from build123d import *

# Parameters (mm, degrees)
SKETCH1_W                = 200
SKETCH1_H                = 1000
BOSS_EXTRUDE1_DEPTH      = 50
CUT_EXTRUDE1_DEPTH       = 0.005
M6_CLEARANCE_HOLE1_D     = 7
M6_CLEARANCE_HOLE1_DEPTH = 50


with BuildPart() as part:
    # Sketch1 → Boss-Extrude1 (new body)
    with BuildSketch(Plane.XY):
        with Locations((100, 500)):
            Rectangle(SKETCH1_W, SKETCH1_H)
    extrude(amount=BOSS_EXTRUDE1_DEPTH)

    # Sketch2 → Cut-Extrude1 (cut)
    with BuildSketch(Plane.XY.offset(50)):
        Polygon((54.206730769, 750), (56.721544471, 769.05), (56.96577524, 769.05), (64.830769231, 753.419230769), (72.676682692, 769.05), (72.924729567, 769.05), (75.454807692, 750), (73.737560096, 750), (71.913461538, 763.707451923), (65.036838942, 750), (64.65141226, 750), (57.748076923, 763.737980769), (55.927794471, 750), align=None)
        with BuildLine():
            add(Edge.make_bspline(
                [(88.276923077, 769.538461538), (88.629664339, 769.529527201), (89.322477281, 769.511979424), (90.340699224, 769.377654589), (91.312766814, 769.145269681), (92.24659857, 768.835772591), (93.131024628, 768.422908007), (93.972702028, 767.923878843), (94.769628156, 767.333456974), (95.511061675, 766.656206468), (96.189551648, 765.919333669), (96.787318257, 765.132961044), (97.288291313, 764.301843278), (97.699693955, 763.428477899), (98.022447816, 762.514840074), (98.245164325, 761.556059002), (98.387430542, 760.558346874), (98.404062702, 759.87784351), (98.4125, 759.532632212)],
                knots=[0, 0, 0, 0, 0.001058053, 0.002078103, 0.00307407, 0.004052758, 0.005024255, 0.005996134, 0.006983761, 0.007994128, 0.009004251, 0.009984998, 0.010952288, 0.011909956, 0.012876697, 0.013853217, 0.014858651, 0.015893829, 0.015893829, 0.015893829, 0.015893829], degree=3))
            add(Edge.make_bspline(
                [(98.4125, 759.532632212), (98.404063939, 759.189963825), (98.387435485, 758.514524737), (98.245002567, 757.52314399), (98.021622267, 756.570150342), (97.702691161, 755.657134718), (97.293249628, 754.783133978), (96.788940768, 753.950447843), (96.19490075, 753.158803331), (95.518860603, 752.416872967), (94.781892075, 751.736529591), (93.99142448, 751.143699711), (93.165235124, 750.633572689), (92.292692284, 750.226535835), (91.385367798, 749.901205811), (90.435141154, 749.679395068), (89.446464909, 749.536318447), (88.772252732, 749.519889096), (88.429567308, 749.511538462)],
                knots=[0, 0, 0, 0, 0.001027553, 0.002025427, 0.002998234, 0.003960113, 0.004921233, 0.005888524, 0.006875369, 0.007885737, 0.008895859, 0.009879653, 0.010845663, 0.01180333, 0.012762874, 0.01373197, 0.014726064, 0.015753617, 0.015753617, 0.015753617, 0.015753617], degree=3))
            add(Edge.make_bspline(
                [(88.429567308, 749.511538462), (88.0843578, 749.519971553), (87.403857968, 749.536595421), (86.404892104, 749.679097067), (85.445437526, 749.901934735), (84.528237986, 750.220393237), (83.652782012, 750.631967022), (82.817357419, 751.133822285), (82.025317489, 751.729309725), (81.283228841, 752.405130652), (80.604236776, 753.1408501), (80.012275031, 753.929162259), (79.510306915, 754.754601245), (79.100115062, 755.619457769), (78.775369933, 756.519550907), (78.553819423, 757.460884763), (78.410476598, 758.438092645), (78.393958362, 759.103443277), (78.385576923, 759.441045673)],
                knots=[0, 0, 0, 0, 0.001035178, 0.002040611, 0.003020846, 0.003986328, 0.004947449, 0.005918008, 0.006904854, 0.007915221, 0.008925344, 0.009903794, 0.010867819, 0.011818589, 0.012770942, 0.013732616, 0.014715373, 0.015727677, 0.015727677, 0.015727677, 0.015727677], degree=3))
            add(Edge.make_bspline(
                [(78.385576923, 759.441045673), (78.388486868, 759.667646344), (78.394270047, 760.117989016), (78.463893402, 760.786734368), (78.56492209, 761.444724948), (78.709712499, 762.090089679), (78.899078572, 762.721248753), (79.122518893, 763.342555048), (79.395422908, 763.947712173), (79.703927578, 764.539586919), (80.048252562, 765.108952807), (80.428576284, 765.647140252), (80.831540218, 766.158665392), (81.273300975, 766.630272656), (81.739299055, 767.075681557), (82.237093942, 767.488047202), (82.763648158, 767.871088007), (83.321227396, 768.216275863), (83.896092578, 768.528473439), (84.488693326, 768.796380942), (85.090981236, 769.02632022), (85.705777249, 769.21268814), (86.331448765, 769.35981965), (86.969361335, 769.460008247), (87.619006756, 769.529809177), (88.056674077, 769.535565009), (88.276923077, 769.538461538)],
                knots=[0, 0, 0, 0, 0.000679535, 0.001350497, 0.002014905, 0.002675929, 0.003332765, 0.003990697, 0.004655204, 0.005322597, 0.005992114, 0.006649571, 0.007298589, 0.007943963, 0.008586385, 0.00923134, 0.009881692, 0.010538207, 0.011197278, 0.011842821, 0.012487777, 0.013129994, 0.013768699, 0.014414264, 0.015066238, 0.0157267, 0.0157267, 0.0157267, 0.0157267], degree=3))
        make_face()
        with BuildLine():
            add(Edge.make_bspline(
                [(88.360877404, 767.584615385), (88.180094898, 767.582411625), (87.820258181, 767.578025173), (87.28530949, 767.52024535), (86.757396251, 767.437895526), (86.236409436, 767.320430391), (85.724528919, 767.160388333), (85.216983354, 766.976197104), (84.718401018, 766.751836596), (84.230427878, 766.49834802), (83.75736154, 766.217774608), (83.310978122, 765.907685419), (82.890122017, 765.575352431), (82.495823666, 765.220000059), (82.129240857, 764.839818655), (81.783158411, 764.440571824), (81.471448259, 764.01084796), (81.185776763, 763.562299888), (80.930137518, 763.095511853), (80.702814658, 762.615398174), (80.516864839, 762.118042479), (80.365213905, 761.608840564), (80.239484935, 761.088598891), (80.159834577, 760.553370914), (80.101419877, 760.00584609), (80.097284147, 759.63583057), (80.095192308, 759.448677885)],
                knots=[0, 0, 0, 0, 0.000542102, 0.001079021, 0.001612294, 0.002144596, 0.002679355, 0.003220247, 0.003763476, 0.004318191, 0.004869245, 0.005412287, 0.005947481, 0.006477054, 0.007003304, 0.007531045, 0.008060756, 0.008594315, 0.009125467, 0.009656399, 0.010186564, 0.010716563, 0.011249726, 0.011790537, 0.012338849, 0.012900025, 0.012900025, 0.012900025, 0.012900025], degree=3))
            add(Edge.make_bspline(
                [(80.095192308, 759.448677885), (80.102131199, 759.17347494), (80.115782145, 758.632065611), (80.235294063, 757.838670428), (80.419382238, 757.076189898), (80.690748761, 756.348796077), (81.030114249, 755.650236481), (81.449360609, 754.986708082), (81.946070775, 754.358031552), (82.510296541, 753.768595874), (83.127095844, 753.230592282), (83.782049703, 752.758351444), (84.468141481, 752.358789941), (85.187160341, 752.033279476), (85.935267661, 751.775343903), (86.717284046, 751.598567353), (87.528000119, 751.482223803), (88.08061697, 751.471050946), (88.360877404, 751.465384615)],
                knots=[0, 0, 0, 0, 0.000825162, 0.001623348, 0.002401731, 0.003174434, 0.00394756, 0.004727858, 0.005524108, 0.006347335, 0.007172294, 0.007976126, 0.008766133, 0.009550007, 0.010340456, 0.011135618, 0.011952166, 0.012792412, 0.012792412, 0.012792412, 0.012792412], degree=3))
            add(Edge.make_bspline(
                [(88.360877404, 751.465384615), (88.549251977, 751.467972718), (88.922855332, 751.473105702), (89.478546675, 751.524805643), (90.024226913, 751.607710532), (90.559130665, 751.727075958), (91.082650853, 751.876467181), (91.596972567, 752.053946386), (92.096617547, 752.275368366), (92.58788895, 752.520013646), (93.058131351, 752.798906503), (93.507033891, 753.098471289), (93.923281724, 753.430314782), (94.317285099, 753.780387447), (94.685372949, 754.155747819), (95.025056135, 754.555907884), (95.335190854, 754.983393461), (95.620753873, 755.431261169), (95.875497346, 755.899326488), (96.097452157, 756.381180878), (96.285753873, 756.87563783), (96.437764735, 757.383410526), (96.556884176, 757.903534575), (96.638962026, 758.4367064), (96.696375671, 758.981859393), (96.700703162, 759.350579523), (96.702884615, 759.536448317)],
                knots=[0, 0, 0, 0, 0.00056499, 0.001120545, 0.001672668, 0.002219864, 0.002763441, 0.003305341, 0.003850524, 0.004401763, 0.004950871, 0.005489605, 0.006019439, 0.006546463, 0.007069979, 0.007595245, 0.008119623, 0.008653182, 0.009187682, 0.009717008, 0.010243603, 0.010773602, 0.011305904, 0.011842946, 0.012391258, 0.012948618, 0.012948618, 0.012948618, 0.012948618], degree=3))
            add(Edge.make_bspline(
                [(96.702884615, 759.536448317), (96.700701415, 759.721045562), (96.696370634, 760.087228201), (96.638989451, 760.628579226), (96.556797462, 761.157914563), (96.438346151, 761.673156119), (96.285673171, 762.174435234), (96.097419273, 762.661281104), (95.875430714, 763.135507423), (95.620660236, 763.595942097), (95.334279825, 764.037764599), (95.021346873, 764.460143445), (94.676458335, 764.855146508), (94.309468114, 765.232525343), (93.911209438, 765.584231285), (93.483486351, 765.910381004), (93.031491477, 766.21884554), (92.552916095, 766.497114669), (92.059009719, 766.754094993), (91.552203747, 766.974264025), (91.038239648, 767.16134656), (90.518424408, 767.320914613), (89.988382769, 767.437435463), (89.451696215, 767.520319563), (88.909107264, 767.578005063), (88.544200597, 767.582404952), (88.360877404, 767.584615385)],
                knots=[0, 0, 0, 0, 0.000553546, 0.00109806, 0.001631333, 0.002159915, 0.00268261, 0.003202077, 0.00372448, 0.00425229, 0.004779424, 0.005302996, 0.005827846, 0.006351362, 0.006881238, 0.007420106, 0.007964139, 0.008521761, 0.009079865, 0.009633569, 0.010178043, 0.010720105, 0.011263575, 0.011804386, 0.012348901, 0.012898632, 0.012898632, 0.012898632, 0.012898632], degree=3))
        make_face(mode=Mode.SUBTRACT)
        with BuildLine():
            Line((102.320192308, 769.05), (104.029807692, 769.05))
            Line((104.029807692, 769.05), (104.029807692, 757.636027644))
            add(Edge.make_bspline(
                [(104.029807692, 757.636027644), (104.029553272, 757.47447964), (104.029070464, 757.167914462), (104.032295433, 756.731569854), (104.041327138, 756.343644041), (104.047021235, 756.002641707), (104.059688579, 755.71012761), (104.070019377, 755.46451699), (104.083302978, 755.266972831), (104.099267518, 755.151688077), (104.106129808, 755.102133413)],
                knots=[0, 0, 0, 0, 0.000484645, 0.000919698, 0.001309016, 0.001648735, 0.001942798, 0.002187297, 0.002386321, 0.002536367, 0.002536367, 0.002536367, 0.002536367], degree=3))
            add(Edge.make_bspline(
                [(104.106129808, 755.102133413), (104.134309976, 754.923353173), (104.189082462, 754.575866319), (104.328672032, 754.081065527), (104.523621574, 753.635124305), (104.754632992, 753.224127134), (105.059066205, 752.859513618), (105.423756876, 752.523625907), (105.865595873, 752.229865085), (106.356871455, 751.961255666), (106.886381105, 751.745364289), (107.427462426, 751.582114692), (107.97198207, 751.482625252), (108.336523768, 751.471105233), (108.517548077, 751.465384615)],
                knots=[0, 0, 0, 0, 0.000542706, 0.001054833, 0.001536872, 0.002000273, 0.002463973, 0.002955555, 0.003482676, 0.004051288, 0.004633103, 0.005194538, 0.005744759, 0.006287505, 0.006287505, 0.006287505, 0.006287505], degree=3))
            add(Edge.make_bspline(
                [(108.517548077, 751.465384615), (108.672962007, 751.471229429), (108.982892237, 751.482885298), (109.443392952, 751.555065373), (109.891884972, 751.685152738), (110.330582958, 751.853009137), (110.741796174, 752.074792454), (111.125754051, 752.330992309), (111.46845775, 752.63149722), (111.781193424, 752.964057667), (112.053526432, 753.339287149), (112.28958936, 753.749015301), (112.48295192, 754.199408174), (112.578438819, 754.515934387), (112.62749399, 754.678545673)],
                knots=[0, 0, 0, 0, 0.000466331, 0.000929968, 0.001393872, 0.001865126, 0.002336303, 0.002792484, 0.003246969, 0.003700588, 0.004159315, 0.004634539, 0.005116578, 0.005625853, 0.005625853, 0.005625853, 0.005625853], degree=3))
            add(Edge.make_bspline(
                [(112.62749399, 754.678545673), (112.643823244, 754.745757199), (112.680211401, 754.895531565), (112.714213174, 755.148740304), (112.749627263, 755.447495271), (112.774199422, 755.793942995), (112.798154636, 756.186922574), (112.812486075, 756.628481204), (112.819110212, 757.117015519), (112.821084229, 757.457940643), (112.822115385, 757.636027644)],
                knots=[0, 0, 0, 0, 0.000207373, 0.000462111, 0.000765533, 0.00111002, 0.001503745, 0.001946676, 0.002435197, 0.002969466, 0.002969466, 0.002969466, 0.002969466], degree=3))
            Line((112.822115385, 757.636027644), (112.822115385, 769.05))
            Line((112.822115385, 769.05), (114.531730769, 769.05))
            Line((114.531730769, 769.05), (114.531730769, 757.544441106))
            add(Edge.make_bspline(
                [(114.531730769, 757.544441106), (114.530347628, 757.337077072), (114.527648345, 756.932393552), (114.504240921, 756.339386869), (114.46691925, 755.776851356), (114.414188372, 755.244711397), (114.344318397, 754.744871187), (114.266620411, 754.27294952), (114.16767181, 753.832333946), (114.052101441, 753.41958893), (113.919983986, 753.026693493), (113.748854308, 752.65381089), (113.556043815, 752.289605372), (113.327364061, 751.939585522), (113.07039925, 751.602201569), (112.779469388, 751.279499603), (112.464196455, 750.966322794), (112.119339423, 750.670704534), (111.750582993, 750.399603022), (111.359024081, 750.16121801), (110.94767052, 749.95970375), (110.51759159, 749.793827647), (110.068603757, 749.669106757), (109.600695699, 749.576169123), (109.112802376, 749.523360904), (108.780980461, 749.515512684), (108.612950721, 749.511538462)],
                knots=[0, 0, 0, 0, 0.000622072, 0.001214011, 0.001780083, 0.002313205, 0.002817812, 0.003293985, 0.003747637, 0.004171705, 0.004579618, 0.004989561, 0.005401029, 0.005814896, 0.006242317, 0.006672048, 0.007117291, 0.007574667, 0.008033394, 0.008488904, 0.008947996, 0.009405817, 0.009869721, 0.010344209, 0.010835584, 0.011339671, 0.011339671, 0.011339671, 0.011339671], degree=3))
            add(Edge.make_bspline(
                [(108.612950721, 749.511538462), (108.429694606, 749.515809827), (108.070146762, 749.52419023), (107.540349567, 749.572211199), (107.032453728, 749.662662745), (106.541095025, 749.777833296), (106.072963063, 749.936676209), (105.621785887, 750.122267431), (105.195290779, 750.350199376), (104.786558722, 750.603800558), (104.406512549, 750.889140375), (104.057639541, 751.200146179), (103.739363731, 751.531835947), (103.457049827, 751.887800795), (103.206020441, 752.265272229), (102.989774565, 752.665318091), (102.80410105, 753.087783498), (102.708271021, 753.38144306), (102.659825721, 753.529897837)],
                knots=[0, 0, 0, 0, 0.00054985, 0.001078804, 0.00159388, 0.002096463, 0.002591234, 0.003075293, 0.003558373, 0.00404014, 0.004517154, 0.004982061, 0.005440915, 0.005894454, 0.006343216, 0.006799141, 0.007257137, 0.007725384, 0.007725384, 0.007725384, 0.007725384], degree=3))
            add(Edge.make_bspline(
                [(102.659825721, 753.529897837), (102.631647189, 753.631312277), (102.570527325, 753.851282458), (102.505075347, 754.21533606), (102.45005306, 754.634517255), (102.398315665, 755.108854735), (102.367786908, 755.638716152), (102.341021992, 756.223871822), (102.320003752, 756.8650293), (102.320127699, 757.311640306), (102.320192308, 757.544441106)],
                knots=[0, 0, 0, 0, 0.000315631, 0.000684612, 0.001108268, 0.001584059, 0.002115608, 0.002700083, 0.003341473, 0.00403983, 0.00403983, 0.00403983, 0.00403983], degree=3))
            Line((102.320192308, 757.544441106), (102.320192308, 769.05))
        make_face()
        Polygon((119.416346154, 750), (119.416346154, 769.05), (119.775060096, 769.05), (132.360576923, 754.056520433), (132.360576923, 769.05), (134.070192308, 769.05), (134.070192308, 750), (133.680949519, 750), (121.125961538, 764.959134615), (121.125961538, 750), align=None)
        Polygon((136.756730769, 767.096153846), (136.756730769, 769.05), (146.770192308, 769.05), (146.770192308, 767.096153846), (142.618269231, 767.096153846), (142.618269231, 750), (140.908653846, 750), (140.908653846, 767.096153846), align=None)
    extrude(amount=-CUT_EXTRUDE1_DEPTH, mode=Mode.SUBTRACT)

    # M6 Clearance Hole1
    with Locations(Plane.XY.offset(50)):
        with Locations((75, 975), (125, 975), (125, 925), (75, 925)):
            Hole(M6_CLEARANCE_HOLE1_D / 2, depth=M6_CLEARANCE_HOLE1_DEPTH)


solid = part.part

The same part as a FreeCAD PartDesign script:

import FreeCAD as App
import Part
import Sketcher

V = App.Vector
Q = App.Units.Quantity


def add_polygon(sketch, points):
    """Adds a closed chain of lines whose ends are joined by coincident constraints."""
    first, n = sketch.GeometryCount, len(points)
    for a, b in zip(points, points[1:] + points[:1]):
        sketch.addGeometry(Part.LineSegment(App.Vector(*a, 0), App.Vector(*b, 0)), False)
    for i in range(n):
        sketch.addConstraint(Sketcher.Constraint("Coincident", first + i, 2, first + (i + 1) % n, 1))

doc = App.newDocument("Part")
body = doc.addObject("PartDesign::Body", "Body")

# Sketch on XY plane
sketch1 = doc.addObject("Sketcher::SketchObject", "Sketch")
body.addObject(sketch1)
sketch1.AttachmentSupport = (doc.XY_Plane, [""])
sketch1.MapMode = "FlatFace"
add_polygon(sketch1, [(0, 1000), (0, 0), (200, 0), (200, 1000)])  # lines 0-3
sketch1.addConstraint(Sketcher.Constraint("Vertical", 0))
sketch1.addConstraint(Sketcher.Constraint("Horizontal", 1))
sketch1.addConstraint(Sketcher.Constraint("Vertical", 2))
sketch1.addConstraint(Sketcher.Constraint("Horizontal", 3))
sketch1.addConstraint(Sketcher.Constraint("Coincident", 0, 2, -1, 1))
sketch1.addConstraint(Sketcher.Constraint("DistanceX", 1, 1, 1, 2, Q("200 mm")))
sketch1.addConstraint(Sketcher.Constraint("DistanceY", 0, 2, 0, 1, Q("1000 mm")))
pad1 = doc.addObject("PartDesign::Pad", "Pad")
body.addObject(pad1)
pad1.Profile = sketch1
pad1.Length = 50

# Sketch on XY plane
sketch2 = doc.addObject("Sketcher::SketchObject", "Sketch001")
body.addObject(sketch2)
sketch2.AttachmentSupport = (doc.XY_Plane, [""])
sketch2.MapMode = "FlatFace"
sketch2.AttachmentOffset = App.Placement(V(0, 0, 50), App.Rotation())
add_polygon(sketch2, [(56.721544, 769.05), (54.206731, 750), (55.927794, 750), (57.748077, 763.737981), (64.651412, 750), (65.036839, 750), (71.913462, 763.707452), (73.73756, 750), (75.454808, 750), (72.92473, 769.05), (72.676683, 769.05), (64.830769, 753.419231), (56.965775, 769.05)])  # lines 0-12
sketch2.addGeometry(Part.BSplineCurve([V(88.276923, 769.538462, 0), V(88.629664, 769.529527, 0), V(89.322477, 769.511979, 0), V(90.340699, 769.377655, 0), V(91.312767, 769.14527, 0), V(92.246599, 768.835773, 0), V(93.131025, 768.422908, 0), V(93.972702, 767.923879, 0), V(94.769628, 767.333457, 0), V(95.511062, 766.656206, 0), V(96.189552, 765.919334, 0), V(96.787318, 765.132961, 0), V(97.288291, 764.301843, 0), V(97.699694, 763.428478, 0), V(98.022448, 762.51484, 0), V(98.245164, 761.556059, 0), V(98.387431, 760.558347, 0), V(98.404063, 759.877844, 0), V(98.4125, 759.532632, 0)], [4, 1, 1, 1, 1, 1, 1, 1, 1, 1, 1, 1, 1, 1, 1, 1, 4], [0, 0.001058053, 0.002078103, 0.00307407, 0.004052758, 0.005024255, 0.005996134, 0.006983761, 0.007994128, 0.009004251, 0.009984998, 0.010952288, 0.011909956, 0.012876697, 0.013853217, 0.014858651, 0.015893829], False, 3, [1, 1, 1, 1, 1, 1, 1, 1, 1, 1, 1, 1, 1, 1, 1, 1, 1, 1, 1], False), False)  # 13
sketch2.addGeometry(Part.BSplineCurve([V(78.385577, 759.441046, 0), V(78.388487, 759.667646, 0), V(78.39427, 760.117989, 0), V(78.463893, 760.786734, 0), V(78.564922, 761.444725, 0), V(78.709712, 762.09009, 0), V(78.899079, 762.721249, 0), V(79.122519, 763.342555, 0), V(79.395423, 763.947712, 0), V(79.703928, 764.539587, 0), V(80.048253, 765.108953, 0), V(80.428576, 765.64714, 0), V(80.83154, 766.158665, 0), V(81.273301, 766.630273, 0), V(81.739299, 767.075682, 0), V(82.237094, 767.488047, 0), V(82.763648, 767.871088, 0), V(83.321227, 768.216276, 0), V(83.896093, 768.528473, 0), V(84.488693, 768.796381, 0), V(85.090981, 769.02632, 0), V(85.705777, 769.212688, 0), V(86.331449, 769.35982, 0), V(86.969361, 769.460008, 0), V(87.619007, 769.529809, 0), V(88.056674, 769.535565, 0), V(88.276923, 769.538462, 0)], [4, 1, 1, 1, 1, 1, 1, 1, 1, 1, 1, 1, 1, 1, 1, 1, 1, 1, 1, 1, 1, 1, 1, 1, 4], [0, 0.000679535, 0.001350497, 0.002014905, 0.002675929, 0.003332765, 0.003990697, 0.004655204, 0.005322597, 0.005992114, 0.006649571, 0.007298589, 0.007943963, 0.008586385, 0.00923134, 0.009881692, 0.010538207, 0.011197278, 0.011842821, 0.012487777, 0.013129994, 0.013768699, 0.014414264, 0.015066238, 0.0157267], False, 3, [1, 1, 1, 1, 1, 1, 1, 1, 1, 1, 1, 1, 1, 1, 1, 1, 1, 1, 1, 1, 1, 1, 1, 1, 1, 1, 1], False), False)  # 14
sketch2.addGeometry(Part.BSplineCurve([V(88.429567, 749.511538, 0), V(88.084358, 749.519972, 0), V(87.403858, 749.536595, 0), V(86.404892, 749.679097, 0), V(85.445438, 749.901935, 0), V(84.528238, 750.220393, 0), V(83.652782, 750.631967, 0), V(82.817357, 751.133822, 0), V(82.025317, 751.72931, 0), V(81.283229, 752.405131, 0), V(80.604237, 753.14085, 0), V(80.012275, 753.929162, 0), V(79.510307, 754.754601, 0), V(79.100115, 755.619458, 0), V(78.77537, 756.519551, 0), V(78.553819, 757.460885, 0), V(78.410477, 758.438093, 0), V(78.393958, 759.103443, 0), V(78.385577, 759.441046, 0)], [4, 1, 1, 1, 1, 1, 1, 1, 1, 1, 1, 1, 1, 1, 1, 1, 4], [0, 0.001035178, 0.002040611, 0.003020846, 0.003986328, 0.004947449, 0.005918008, 0.006904854, 0.007915221, 0.008925344, 0.009903794, 0.010867819, 0.011818589, 0.012770942, 0.013732616, 0.014715373, 0.015727677], False, 3, [1, 1, 1, 1, 1, 1, 1, 1, 1, 1, 1, 1, 1, 1, 1, 1, 1, 1, 1], False), False)  # 15
sketch2.addGeometry(Part.BSplineCurve([V(98.4125, 759.532632, 0), V(98.404064, 759.189964, 0), V(98.387435, 758.514525, 0), V(98.245003, 757.523144, 0), V(98.021622, 756.57015, 0), V(97.702691, 755.657135, 0), V(97.29325, 754.783134, 0), V(96.788941, 753.950448, 0), V(96.194901, 753.158803, 0), V(95.518861, 752.416873, 0), V(94.781892, 751.73653, 0), V(93.991424, 751.1437, 0), V(93.165235, 750.633573, 0), V(92.292692, 750.226536, 0), V(91.385368, 749.901206, 0), V(90.435141, 749.679395, 0), V(89.446465, 749.536318, 0), V(88.772253, 749.519889, 0), V(88.429567, 749.511538, 0)], [4, 1, 1, 1, 1, 1, 1, 1, 1, 1, 1, 1, 1, 1, 1, 1, 4], [0, 0.001027553, 0.002025427, 0.002998234, 0.003960113, 0.004921233, 0.005888524, 0.006875369, 0.007885737, 0.008895859, 0.009879653, 0.010845663, 0.01180333, 0.012762874, 0.01373197, 0.014726064, 0.015753617], False, 3, [1, 1, 1, 1, 1, 1, 1, 1, 1, 1, 1, 1, 1, 1, 1, 1, 1, 1, 1], False), False)  # 16
sketch2.addGeometry(Part.BSplineCurve([V(96.702885, 759.536448, 0), V(96.700701, 759.721046, 0), V(96.696371, 760.087228, 0), V(96.638989, 760.628579, 0), V(96.556797, 761.157915, 0), V(96.438346, 761.673156, 0), V(96.285673, 762.174435, 0), V(96.097419, 762.661281, 0), V(95.875431, 763.135507, 0), V(95.62066, 763.595942, 0), V(95.33428, 764.037765, 0), V(95.021347, 764.460143, 0), V(94.676458, 764.855147, 0), V(94.309468, 765.232525, 0), V(93.911209, 765.584231, 0), V(93.483486, 765.910381, 0), V(93.031491, 766.218846, 0), V(92.552916, 766.497115, 0), V(92.05901, 766.754095, 0), V(91.552204, 766.974264, 0), V(91.03824, 767.161347, 0), V(90.518424, 767.320915, 0), V(89.988383, 767.437435, 0), V(89.451696, 767.52032, 0), V(88.909107, 767.578005, 0), V(88.544201, 767.582405, 0), V(88.360877, 767.584615, 0)], [4, 1, 1, 1, 1, 1, 1, 1, 1, 1, 1, 1, 1, 1, 1, 1, 1, 1, 1, 1, 1, 1, 1, 1, 4], [0, 0.000553546, 0.00109806, 0.001631333, 0.002159915, 0.00268261, 0.003202077, 0.00372448, 0.00425229, 0.004779424, 0.005302996, 0.005827846, 0.006351362, 0.006881238, 0.007420106, 0.007964139, 0.008521761, 0.009079865, 0.009633569, 0.010178043, 0.010720105, 0.011263575, 0.011804386, 0.012348901, 0.012898632], False, 3, [1, 1, 1, 1, 1, 1, 1, 1, 1, 1, 1, 1, 1, 1, 1, 1, 1, 1, 1, 1, 1, 1, 1, 1, 1, 1, 1], False), False)  # 17
sketch2.addGeometry(Part.BSplineCurve([V(88.360877, 751.465385, 0), V(88.549252, 751.467973, 0), V(88.922855, 751.473106, 0), V(89.478547, 751.524806, 0), V(90.024227, 751.607711, 0), V(90.559131, 751.727076, 0), V(91.082651, 751.876467, 0), V(91.596973, 752.053946, 0), V(92.096618, 752.275368, 0), V(92.587889, 752.520014, 0), V(93.058131, 752.798907, 0), V(93.507034, 753.098471, 0), V(93.923282, 753.430315, 0), V(94.317285, 753.780387, 0), V(94.685373, 754.155748, 0), V(95.025056, 754.555908, 0), V(95.335191, 754.983393, 0), V(95.620754, 755.431261, 0), V(95.875497, 755.899326, 0), V(96.097452, 756.381181, 0), V(96.285754, 756.875638, 0), V(96.437765, 757.383411, 0), V(96.556884, 757.903535, 0), V(96.638962, 758.436706, 0), V(96.696376, 758.981859, 0), V(96.700703, 759.35058, 0), V(96.702885, 759.536448, 0)], [4, 1, 1, 1, 1, 1, 1, 1, 1, 1, 1, 1, 1, 1, 1, 1, 1, 1, 1, 1, 1, 1, 1, 1, 4], [0, 0.00056499, 0.001120545, 0.001672668, 0.002219864, 0.002763441, 0.003305341, 0.003850524, 0.004401763, 0.004950871, 0.005489605, 0.006019439, 0.006546463, 0.007069979, 0.007595245, 0.008119623, 0.008653182, 0.009187682, 0.009717008, 0.010243603, 0.010773602, 0.011305904, 0.011842946, 0.012391258, 0.012948618], False, 3, [1, 1, 1, 1, 1, 1, 1, 1, 1, 1, 1, 1, 1, 1, 1, 1, 1, 1, 1, 1, 1, 1, 1, 1, 1, 1, 1], False), False)  # 18
sketch2.addGeometry(Part.BSplineCurve([V(80.095192, 759.448678, 0), V(80.102131, 759.173475, 0), V(80.115782, 758.632066, 0), V(80.235294, 757.83867, 0), V(80.419382, 757.07619, 0), V(80.690749, 756.348796, 0), V(81.030114, 755.650236, 0), V(81.449361, 754.986708, 0), V(81.946071, 754.358032, 0), V(82.510297, 753.768596, 0), V(83.127096, 753.230592, 0), V(83.78205, 752.758351, 0), V(84.468141, 752.35879, 0), V(85.18716, 752.033279, 0), V(85.935268, 751.775344, 0), V(86.717284, 751.598567, 0), V(87.528, 751.482224, 0), V(88.080617, 751.471051, 0), V(88.360877, 751.465385, 0)], [4, 1, 1, 1, 1, 1, 1, 1, 1, 1, 1, 1, 1, 1, 1, 1, 4], [0, 0.000825162, 0.001623348, 0.002401731, 0.003174434, 0.00394756, 0.004727858, 0.005524108, 0.006347335, 0.007172294, 0.007976126, 0.008766133, 0.009550007, 0.010340456, 0.011135618, 0.011952166, 0.012792412], False, 3, [1, 1, 1, 1, 1, 1, 1, 1, 1, 1, 1, 1, 1, 1, 1, 1, 1, 1, 1], False), False)  # 19
sketch2.addGeometry(Part.BSplineCurve([V(88.360877, 767.584615, 0), V(88.180095, 767.582412, 0), V(87.820258, 767.578025, 0), V(87.285309, 767.520245, 0), V(86.757396, 767.437896, 0), V(86.236409, 767.32043, 0), V(85.724529, 767.160388, 0), V(85.216983, 766.976197, 0), V(84.718401, 766.751837, 0), V(84.230428, 766.498348, 0), V(83.757362, 766.217775, 0), V(83.310978, 765.907685, 0), V(82.890122, 765.575352, 0), V(82.495824, 765.22, 0), V(82.129241, 764.839819, 0), V(81.783158, 764.440572, 0), V(81.471448, 764.010848, 0), V(81.185777, 763.5623, 0), V(80.930138, 763.095512, 0), V(80.702815, 762.615398, 0), V(80.516865, 762.118042, 0), V(80.365214, 761.608841, 0), V(80.239485, 761.088599, 0), V(80.159835, 760.553371, 0), V(80.10142, 760.005846, 0), V(80.097284, 759.635831, 0), V(80.095192, 759.448678, 0)], [4, 1, 1, 1, 1, 1, 1, 1, 1, 1, 1, 1, 1, 1, 1, 1, 1, 1, 1, 1, 1, 1, 1, 1, 4], [0, 0.000542102, 0.001079021, 0.001612294, 0.002144596, 0.002679355, 0.003220247, 0.003763476, 0.004318191, 0.004869245, 0.005412287, 0.005947481, 0.006477054, 0.007003304, 0.007531045, 0.008060756, 0.008594315, 0.009125467, 0.009656399, 0.010186564, 0.010716563, 0.011249726, 0.011790537, 0.012338849, 0.012900025], False, 3, [1, 1, 1, 1, 1, 1, 1, 1, 1, 1, 1, 1, 1, 1, 1, 1, 1, 1, 1, 1, 1, 1, 1, 1, 1, 1, 1], False), False)  # 20
sketch2.addGeometry(Part.LineSegment(V(104.029808, 769.05, 0), V(102.320192, 769.05, 0)), False)  # 21
sketch2.addGeometry(Part.LineSegment(V(102.320192, 769.05, 0), V(102.320192, 757.544441, 0)), False)  # 22
sketch2.addGeometry(Part.BSplineCurve([V(102.659826, 753.529898, 0), V(102.631647, 753.631312, 0), V(102.570527, 753.851282, 0), V(102.505075, 754.215336, 0), V(102.450053, 754.634517, 0), V(102.398316, 755.108855, 0), V(102.367787, 755.638716, 0), V(102.341022, 756.223872, 0), V(102.320004, 756.865029, 0), V(102.320128, 757.31164, 0), V(102.320192, 757.544441, 0)], [4, 1, 1, 1, 1, 1, 1, 1, 4], [0, 0.000315631, 0.000684612, 0.001108268, 0.001584059, 0.002115608, 0.002700083, 0.003341473, 0.00403983], False, 3, [1, 1, 1, 1, 1, 1, 1, 1, 1, 1, 1], False), False)  # 23
sketch2.addGeometry(Part.BSplineCurve([V(108.612951, 749.511538, 0), V(108.429695, 749.51581, 0), V(108.070147, 749.52419, 0), V(107.54035, 749.572211, 0), V(107.032454, 749.662663, 0), V(106.541095, 749.777833, 0), V(106.072963, 749.936676, 0), V(105.621786, 750.122267, 0), V(105.195291, 750.350199, 0), V(104.786559, 750.603801, 0), V(104.406513, 750.88914, 0), V(104.05764, 751.200146, 0), V(103.739364, 751.531836, 0), V(103.45705, 751.887801, 0), V(103.20602, 752.265272, 0), V(102.989775, 752.665318, 0), V(102.804101, 753.087783, 0), V(102.708271, 753.381443, 0), V(102.659826, 753.529898, 0)], [4, 1, 1, 1, 1, 1, 1, 1, 1, 1, 1, 1, 1, 1, 1, 1, 4], [0, 0.00054985, 0.001078804, 0.00159388, 0.002096463, 0.002591234, 0.003075293, 0.003558373, 0.00404014, 0.004517154, 0.004982061, 0.005440915, 0.005894454, 0.006343216, 0.006799141, 0.007257137, 0.007725384], False, 3, [1, 1, 1, 1, 1, 1, 1, 1, 1, 1, 1, 1, 1, 1, 1, 1, 1, 1, 1], False), False)  # 24
sketch2.addGeometry(Part.BSplineCurve([V(114.531731, 757.544441, 0), V(114.530348, 757.337077, 0), V(114.527648, 756.932394, 0), V(114.504241, 756.339387, 0), V(114.466919, 755.776851, 0), V(114.414188, 755.244711, 0), V(114.344318, 754.744871, 0), V(114.26662, 754.27295, 0), V(114.167672, 753.832334, 0), V(114.052101, 753.419589, 0), V(113.919984, 753.026693, 0), V(113.748854, 752.653811, 0), V(113.556044, 752.289605, 0), V(113.327364, 751.939586, 0), V(113.070399, 751.602202, 0), V(112.779469, 751.2795, 0), V(112.464196, 750.966323, 0), V(112.119339, 750.670705, 0), V(111.750583, 750.399603, 0), V(111.359024, 750.161218, 0), V(110.947671, 749.959704, 0), V(110.517592, 749.793828, 0), V(110.068604, 749.669107, 0), V(109.600696, 749.576169, 0), V(109.112802, 749.523361, 0), V(108.78098, 749.515513, 0), V(108.612951, 749.511538, 0)], [4, 1, 1, 1, 1, 1, 1, 1, 1, 1, 1, 1, 1, 1, 1, 1, 1, 1, 1, 1, 1, 1, 1, 1, 4], [0, 0.000622072, 0.001214011, 0.001780083, 0.002313205, 0.002817812, 0.003293985, 0.003747637, 0.004171705, 0.004579618, 0.004989561, 0.005401029, 0.005814896, 0.006242317, 0.006672048, 0.007117291, 0.007574667, 0.008033394, 0.008488904, 0.008947996, 0.009405817, 0.009869721, 0.010344209, 0.010835584, 0.011339671], False, 3, [1, 1, 1, 1, 1, 1, 1, 1, 1, 1, 1, 1, 1, 1, 1, 1, 1, 1, 1, 1, 1, 1, 1, 1, 1, 1, 1], False), False)  # 25
sketch2.addGeometry(Part.LineSegment(V(114.531731, 757.544441, 0), V(114.531731, 769.05, 0)), False)  # 26
sketch2.addGeometry(Part.LineSegment(V(114.531731, 769.05, 0), V(112.822115, 769.05, 0)), False)  # 27
sketch2.addGeometry(Part.LineSegment(V(112.822115, 769.05, 0), V(112.822115, 757.636028, 0)), False)  # 28
sketch2.addGeometry(Part.BSplineCurve([V(112.627494, 754.678546, 0), V(112.643823, 754.745757, 0), V(112.680211, 754.895532, 0), V(112.714213, 755.14874, 0), V(112.749627, 755.447495, 0), V(112.774199, 755.793943, 0), V(112.798155, 756.186923, 0), V(112.812486, 756.628481, 0), V(112.81911, 757.117016, 0), V(112.821084, 757.457941, 0), V(112.822115, 757.636028, 0)], [4, 1, 1, 1, 1, 1, 1, 1, 4], [0, 0.000207373, 0.000462111, 0.000765533, 0.00111002, 0.001503745, 0.001946676, 0.002435197, 0.002969466], False, 3, [1, 1, 1, 1, 1, 1, 1, 1, 1, 1, 1], False), False)  # 29
sketch2.addGeometry(Part.BSplineCurve([V(108.517548, 751.465385, 0), V(108.672962, 751.471229, 0), V(108.982892, 751.482885, 0), V(109.443393, 751.555065, 0), V(109.891885, 751.685153, 0), V(110.330583, 751.853009, 0), V(110.741796, 752.074792, 0), V(111.125754, 752.330992, 0), V(111.468458, 752.631497, 0), V(111.781193, 752.964058, 0), V(112.053526, 753.339287, 0), V(112.289589, 753.749015, 0), V(112.482952, 754.199408, 0), V(112.578439, 754.515934, 0), V(112.627494, 754.678546, 0)], [4, 1, 1, 1, 1, 1, 1, 1, 1, 1, 1, 1, 4], [0, 0.000466331, 0.000929968, 0.001393872, 0.001865126, 0.002336303, 0.002792484, 0.003246969, 0.003700588, 0.004159315, 0.004634539, 0.005116578, 0.005625853], False, 3, [1, 1, 1, 1, 1, 1, 1, 1, 1, 1, 1, 1, 1, 1, 1], False), False)  # 30
sketch2.addGeometry(Part.BSplineCurve([V(104.10613, 755.102133, 0), V(104.13431, 754.923353, 0), V(104.189082, 754.575866, 0), V(104.328672, 754.081066, 0), V(104.523622, 753.635124, 0), V(104.754633, 753.224127, 0), V(105.059066, 752.859514, 0), V(105.423757, 752.523626, 0), V(105.865596, 752.229865, 0), V(106.356871, 751.961256, 0), V(106.886381, 751.745364, 0), V(107.427462, 751.582115, 0), V(107.971982, 751.482625, 0), V(108.336524, 751.471105, 0), V(108.517548, 751.465385, 0)], [4, 1, 1, 1, 1, 1, 1, 1, 1, 1, 1, 1, 4], [0, 0.000542706, 0.001054833, 0.001536872, 0.002000273, 0.002463973, 0.002955555, 0.003482676, 0.004051288, 0.004633103, 0.005194538, 0.005744759, 0.006287505], False, 3, [1, 1, 1, 1, 1, 1, 1, 1, 1, 1, 1, 1, 1, 1, 1], False), False)  # 31
sketch2.addGeometry(Part.BSplineCurve([V(104.029808, 757.636028, 0), V(104.029553, 757.47448, 0), V(104.02907, 757.167914, 0), V(104.032295, 756.73157, 0), V(104.041327, 756.343644, 0), V(104.047021, 756.002642, 0), V(104.059689, 755.710128, 0), V(104.070019, 755.464517, 0), V(104.083303, 755.266973, 0), V(104.099268, 755.151688, 0), V(104.10613, 755.102133, 0)], [4, 1, 1, 1, 1, 1, 1, 1, 4], [0, 0.000484645, 0.000919698, 0.001309016, 0.001648735, 0.001942798, 0.002187297, 0.002386321, 0.002536367], False, 3, [1, 1, 1, 1, 1, 1, 1, 1, 1, 1, 1], False), False)  # 32
sketch2.addGeometry(Part.LineSegment(V(104.029808, 757.636028, 0), V(104.029808, 769.05, 0)), False)  # 33
add_polygon(sketch2, [(119.416346, 769.05), (119.416346, 750), (121.125962, 750), (121.125962, 764.959135), (133.68095, 750), (134.070192, 750), (134.070192, 769.05), (132.360577, 769.05), (132.360577, 754.05652), (119.77506, 769.05)])  # lines 34-43
add_polygon(sketch2, [(136.756731, 769.05), (136.756731, 767.096154), (140.908654, 767.096154), (140.908654, 750), (142.618269, 750), (142.618269, 767.096154), (146.770192, 767.096154), (146.770192, 769.05)])  # lines 44-51
sketch2.addConstraint(Sketcher.Constraint("Block", 13))
sketch2.addConstraint(Sketcher.Constraint("Block", 14))
sketch2.addConstraint(Sketcher.Constraint("Block", 15))
sketch2.addConstraint(Sketcher.Constraint("Block", 16))
sketch2.addConstraint(Sketcher.Constraint("Block", 17))
sketch2.addConstraint(Sketcher.Constraint("Block", 18))
sketch2.addConstraint(Sketcher.Constraint("Block", 19))
sketch2.addConstraint(Sketcher.Constraint("Block", 20))
sketch2.addConstraint(Sketcher.Constraint("Block", 23))
sketch2.addConstraint(Sketcher.Constraint("Block", 24))
sketch2.addConstraint(Sketcher.Constraint("Block", 25))
sketch2.addConstraint(Sketcher.Constraint("Block", 29))
sketch2.addConstraint(Sketcher.Constraint("Block", 30))
sketch2.addConstraint(Sketcher.Constraint("Block", 31))
sketch2.addConstraint(Sketcher.Constraint("Block", 32))
sketch2.addConstraint(Sketcher.Constraint("Coincident", 21, 2, 22, 1))
sketch2.addConstraint(Sketcher.Constraint("Coincident", 22, 2, 23, 2))
sketch2.addConstraint(Sketcher.Constraint("Coincident", 25, 1, 26, 1))
sketch2.addConstraint(Sketcher.Constraint("Coincident", 26, 2, 27, 1))
sketch2.addConstraint(Sketcher.Constraint("Coincident", 27, 2, 28, 1))
sketch2.addConstraint(Sketcher.Constraint("Coincident", 28, 2, 29, 2))
sketch2.addConstraint(Sketcher.Constraint("Coincident", 32, 1, 33, 1))
sketch2.addConstraint(Sketcher.Constraint("Coincident", 33, 2, 21, 1))
sketch2.addConstraint(Sketcher.Constraint("Horizontal", 1))
sketch2.addConstraint(Sketcher.Constraint("Horizontal", 4))
sketch2.addConstraint(Sketcher.Constraint("Horizontal", 7))
sketch2.addConstraint(Sketcher.Constraint("Horizontal", 9))
sketch2.addConstraint(Sketcher.Constraint("Horizontal", 12))
sketch2.addConstraint(Sketcher.Constraint("Horizontal", 21))
sketch2.addConstraint(Sketcher.Constraint("Vertical", 22))
sketch2.addConstraint(Sketcher.Constraint("Vertical", 26))
sketch2.addConstraint(Sketcher.Constraint("Horizontal", 27))
sketch2.addConstraint(Sketcher.Constraint("Vertical", 28))
sketch2.addConstraint(Sketcher.Constraint("Vertical", 33))
sketch2.addConstraint(Sketcher.Constraint("Vertical", 34))
sketch2.addConstraint(Sketcher.Constraint("Horizontal", 35))
sketch2.addConstraint(Sketcher.Constraint("Vertical", 36))
sketch2.addConstraint(Sketcher.Constraint("Horizontal", 38))
sketch2.addConstraint(Sketcher.Constraint("Vertical", 39))
sketch2.addConstraint(Sketcher.Constraint("Horizontal", 40))
sketch2.addConstraint(Sketcher.Constraint("Vertical", 41))
sketch2.addConstraint(Sketcher.Constraint("Horizontal", 43))
sketch2.addConstraint(Sketcher.Constraint("Vertical", 44))
sketch2.addConstraint(Sketcher.Constraint("Horizontal", 45))
sketch2.addConstraint(Sketcher.Constraint("Vertical", 46))
sketch2.addConstraint(Sketcher.Constraint("Horizontal", 47))
sketch2.addConstraint(Sketcher.Constraint("Vertical", 48))
sketch2.addConstraint(Sketcher.Constraint("Horizontal", 49))
sketch2.addConstraint(Sketcher.Constraint("Vertical", 50))
sketch2.addConstraint(Sketcher.Constraint("Horizontal", 51))
sketch2.addConstraint(Sketcher.Constraint("Horizontal", 1, 2, 3, 2))
sketch2.addConstraint(Sketcher.Constraint("Horizontal", 4, 2, 6, 2))
sketch2.addConstraint(Sketcher.Constraint("Horizontal", 9, 2, 11, 2))
sketch2.addConstraint(Sketcher.Constraint("Horizontal", 12, 2, 21, 2))
sketch2.addConstraint(Sketcher.Constraint("Horizontal", 21, 2, 26, 2))
sketch2.addConstraint(Sketcher.Constraint("Horizontal", 7, 2, 34, 2))
sketch2.addConstraint(Sketcher.Constraint("Horizontal", 35, 2, 37, 2))
sketch2.addConstraint(Sketcher.Constraint("Horizontal", 33, 2, 39, 2))
sketch2.addConstraint(Sketcher.Constraint("Horizontal", 40, 2, 42, 2))
sketch2.addConstraint(Sketcher.Constraint("Horizontal", 38, 2, 46, 2))
sketch2.addConstraint(Sketcher.Constraint("Horizontal", 45, 2, 48, 2))
sketch2.addConstraint(Sketcher.Constraint("Horizontal", 43, 2, 50, 2))
sketch2.addConstraint(Sketcher.Constraint("Equal", 27, 35))
sketch2.addConstraint(Sketcher.Constraint("Equal", 35, 40))
sketch2.addConstraint(Sketcher.Constraint("Equal", 40, 47))
sketch2.addConstraint(Sketcher.Constraint("Equal", 45, 49))
sketch2.addConstraint(Sketcher.Constraint("DistanceY", -1, 1, 0, 2, Q("750 mm")))
sketch2.addConstraint(Sketcher.Constraint("DistanceY", 34, 2, 34, 1, Q("19.05 mm")))
sketch2.addConstraint(Sketcher.Constraint("Angle", 6, Q("-82.419985 deg")))
sketch2.addConstraint(Sketcher.Constraint("DistanceX", 39, 2, 49, 2, Q("12.7 mm")))
sketch2.addConstraint(Sketcher.Constraint("DistanceX", 8, 2, 26, 2, Q("41.607001 mm")))
sketch2.addConstraint(Sketcher.Constraint("DistanceX", 12, 2, 12, 1, Q("0.244231 mm")))
sketch2.addConstraint(Sketcher.Constraint("DistanceX", 51, 2, 51, 1, Q("10.013462 mm")))
sketch2.addConstraint(Sketcher.Constraint("DistanceY", 41, 2, 41, 1, Q("14.99348 mm")))
sketch2.addConstraint(Sketcher.Constraint("DistanceX", 5, 2, 6, 2, Q("1.824099 mm")))
sketch2.addConstraint(Sketcher.Constraint("DistanceX", 11, 2, 2, 2, Q("0.782302 mm")))
sketch2.addConstraint(Sketcher.Constraint("DistanceX", 42, 2, 36, 2, Q("1.350901 mm")))
sketch2.addConstraint(Sketcher.Constraint("Distance", 2, Q("13.85805 mm")))
sketch2.addConstraint(Sketcher.Constraint("Distance", 3, Q("15.37492 mm")))
sketch2.addConstraint(Sketcher.Constraint("Distance", 5, Q("15.335651 mm")))
sketch2.addConstraint(Sketcher.Constraint("Distance", 8, Q("19.217279 mm")))
sketch2.addConstraint(Sketcher.Constraint("DistanceX", 1, 1, 1, 2, Q("1.721064 mm")))
sketch2.addConstraint(Sketcher.Constraint("DistanceX", 4, 1, 4, 2, Q("0.385427 mm")))
sketch2.addConstraint(Sketcher.Constraint("DistanceX", 7, 1, 7, 2, Q("1.717248 mm")))
sketch2.addConstraint(Sketcher.Constraint("DistanceX", 9, 2, 9, 1, Q("0.248047 mm")))
sketch2.addConstraint(Sketcher.Constraint("DistanceX", 38, 1, 38, 2, Q("0.389243 mm")))
sketch2.addConstraint(Sketcher.Constraint("DistanceY", 36, 1, 36, 2, Q("14.959135 mm")))
sketch2.addConstraint(Sketcher.Constraint("DistanceY", 44, 2, 44, 1, Q("1.953846 mm")))
sketch2.addConstraint(Sketcher.Constraint("DistanceX", -1, 1, 0, 2, Q("54.206731 mm")))
sketch2.addConstraint(Sketcher.Constraint("DistanceX", -1, 1, 10, 2, Q("64.830769 mm")))
sketch2.addConstraint(Sketcher.Constraint("DistanceY", -1, 1, 10, 2, Q("753.419231 mm")))
sketch2.addConstraint(Sketcher.Constraint("DistanceX", -1, 1, 35, 2, Q("121.125962 mm")))
sketch2.addConstraint(Sketcher.Constraint("DistanceX", -1, 1, 37, 2, Q("133.68095 mm")))
pocket1 = doc.addObject("PartDesign::Pocket", "Pocket")
body.addObject(pocket1)
pocket1.Profile = sketch2
pocket1.Length = 0.005

# Sketch on XY plane
sketch3 = doc.addObject("Sketcher::SketchObject", "Sketch002")
body.addObject(sketch3)
sketch3.AttachmentSupport = (doc.XY_Plane, [""])
sketch3.MapMode = "FlatFace"
sketch3.AttachmentOffset = App.Placement(V(0, 0, 50), App.Rotation())
sketch3.addGeometry(Part.Circle(V(75, 975, 0), V(0, 0, 1), 3.5), False)
sketch3.addGeometry(Part.Circle(V(125, 975, 0), V(0, 0, 1), 3.5), False)
sketch3.addGeometry(Part.Circle(V(125, 925, 0), V(0, 0, 1), 3.5), False)
sketch3.addGeometry(Part.Circle(V(75, 925, 0), V(0, 0, 1), 3.5), False)
sketch3.addConstraint(Sketcher.Constraint("Equal", 0, 1))
sketch3.addConstraint(Sketcher.Constraint("Equal", 1, 2))
sketch3.addConstraint(Sketcher.Constraint("Equal", 2, 3))
sketch3.addConstraint(Sketcher.Constraint("Horizontal", 0, 3, 1, 3))
sketch3.addConstraint(Sketcher.Constraint("Horizontal", 2, 3, 3, 3))
sketch3.addConstraint(Sketcher.Constraint("Vertical", 1, 3, 2, 3))
sketch3.addConstraint(Sketcher.Constraint("Vertical", 0, 3, 3, 3))
sketch3.addConstraint(Sketcher.Constraint("Diameter", 0, Q("7 mm")))
sketch3.addConstraint(Sketcher.Constraint("DistanceX", -1, 1, 0, 3, Q("75 mm")))
sketch3.addConstraint(Sketcher.Constraint("DistanceY", -1, 1, 0, 3, Q("975 mm")))
sketch3.addConstraint(Sketcher.Constraint("DistanceX", -1, 1, 1, 3, Q("125 mm")))
sketch3.addConstraint(Sketcher.Constraint("DistanceY", -1, 1, 2, 3, Q("925 mm")))
doc.recompute()
hole = doc.addObject("PartDesign::Hole", "Hole")
body.addObject(hole)
hole.Profile = sketch3
hole.ThreadType = "None"
hole.Diameter = 7
hole.DepthType = "Dimension"
hole.Depth = 50
hole.DrillPoint = "Flat"

doc.recompute()
